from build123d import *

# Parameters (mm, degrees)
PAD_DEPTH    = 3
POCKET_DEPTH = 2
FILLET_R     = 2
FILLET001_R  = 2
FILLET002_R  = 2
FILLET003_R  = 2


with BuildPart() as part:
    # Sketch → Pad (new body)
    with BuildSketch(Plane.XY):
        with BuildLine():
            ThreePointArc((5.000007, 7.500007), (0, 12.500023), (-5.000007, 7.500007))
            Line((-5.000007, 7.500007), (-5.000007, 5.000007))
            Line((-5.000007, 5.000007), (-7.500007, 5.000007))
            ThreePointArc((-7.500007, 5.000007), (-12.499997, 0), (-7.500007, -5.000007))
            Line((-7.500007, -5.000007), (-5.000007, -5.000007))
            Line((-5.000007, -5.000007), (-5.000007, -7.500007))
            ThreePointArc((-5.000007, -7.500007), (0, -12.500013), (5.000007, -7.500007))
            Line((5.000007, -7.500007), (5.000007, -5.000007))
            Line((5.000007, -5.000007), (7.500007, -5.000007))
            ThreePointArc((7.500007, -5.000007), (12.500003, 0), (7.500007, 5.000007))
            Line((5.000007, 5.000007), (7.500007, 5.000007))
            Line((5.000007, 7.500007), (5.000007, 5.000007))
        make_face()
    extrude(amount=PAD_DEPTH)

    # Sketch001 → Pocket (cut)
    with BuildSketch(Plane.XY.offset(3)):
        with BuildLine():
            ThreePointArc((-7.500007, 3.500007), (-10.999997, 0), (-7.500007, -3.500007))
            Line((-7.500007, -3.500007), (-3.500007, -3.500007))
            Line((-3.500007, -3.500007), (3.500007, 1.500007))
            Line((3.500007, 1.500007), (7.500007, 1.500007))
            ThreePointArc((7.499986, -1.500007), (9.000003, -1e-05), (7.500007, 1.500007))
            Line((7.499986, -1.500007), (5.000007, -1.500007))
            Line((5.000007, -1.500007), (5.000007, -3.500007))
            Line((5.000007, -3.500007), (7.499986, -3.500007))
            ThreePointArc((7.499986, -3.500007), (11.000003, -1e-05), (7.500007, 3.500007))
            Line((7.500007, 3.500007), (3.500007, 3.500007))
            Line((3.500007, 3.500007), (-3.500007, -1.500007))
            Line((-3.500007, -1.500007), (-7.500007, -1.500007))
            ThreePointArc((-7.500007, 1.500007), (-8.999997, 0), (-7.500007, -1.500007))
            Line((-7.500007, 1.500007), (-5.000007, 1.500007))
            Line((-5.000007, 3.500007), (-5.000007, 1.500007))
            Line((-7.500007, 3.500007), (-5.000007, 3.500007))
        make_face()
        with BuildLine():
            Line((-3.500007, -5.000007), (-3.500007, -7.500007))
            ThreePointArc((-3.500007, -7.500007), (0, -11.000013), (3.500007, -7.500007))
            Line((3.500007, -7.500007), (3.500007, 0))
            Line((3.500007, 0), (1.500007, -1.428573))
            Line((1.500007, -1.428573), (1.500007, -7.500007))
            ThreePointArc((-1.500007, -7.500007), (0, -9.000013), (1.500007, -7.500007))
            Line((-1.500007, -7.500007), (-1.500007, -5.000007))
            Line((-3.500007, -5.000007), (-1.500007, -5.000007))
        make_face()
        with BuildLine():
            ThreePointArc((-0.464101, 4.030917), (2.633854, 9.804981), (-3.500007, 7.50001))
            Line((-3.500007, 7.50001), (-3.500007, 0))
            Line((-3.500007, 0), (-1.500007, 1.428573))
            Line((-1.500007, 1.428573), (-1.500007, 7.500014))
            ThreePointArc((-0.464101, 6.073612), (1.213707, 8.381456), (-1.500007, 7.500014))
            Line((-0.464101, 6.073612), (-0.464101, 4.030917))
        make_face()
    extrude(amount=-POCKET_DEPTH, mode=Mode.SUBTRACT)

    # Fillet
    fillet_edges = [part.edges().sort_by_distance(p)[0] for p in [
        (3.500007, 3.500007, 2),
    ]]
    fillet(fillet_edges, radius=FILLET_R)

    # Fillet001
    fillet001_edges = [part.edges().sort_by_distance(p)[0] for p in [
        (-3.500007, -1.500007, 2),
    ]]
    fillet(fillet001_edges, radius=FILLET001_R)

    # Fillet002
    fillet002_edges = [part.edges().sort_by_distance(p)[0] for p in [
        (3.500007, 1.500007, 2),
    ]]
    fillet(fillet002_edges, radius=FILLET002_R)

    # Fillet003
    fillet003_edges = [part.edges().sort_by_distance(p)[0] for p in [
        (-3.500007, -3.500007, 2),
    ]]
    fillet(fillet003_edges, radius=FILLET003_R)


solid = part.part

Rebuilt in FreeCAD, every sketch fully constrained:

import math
import FreeCAD as App
import Part
import Sketcher

V = App.Vector
Q = App.Units.Quantity


def edges_at(feature, points):
    """Names of the edges that pass closest to the given points."""
    edges = feature.Shape.Edges
    near = lambda p: min(range(len(edges)), key=lambda i: edges[i].distToShape(Part.Vertex(*p))[0])
    return sorted({f"Edge{near(p) + 1}" for p in points})

doc = App.newDocument("Part")
body = doc.addObject("PartDesign::Body", "Body")

sketch1 = body.newObject("Sketcher::SketchObject", "Sketch")
sketch1.AttachmentSupport = (doc.getObject("XY_Plane"), [""])
sketch1.MapMode = "FlatFace"
sketch1.addGeometry(Part.ArcOfCircle(Part.Circle(V(0, 7.500016, 0), V(0, 0, 1), 5.000007), math.radians(-0.000103), math.radians(180.000103)), False)
sketch1.addGeometry(Part.LineSegment(V(-5.000007, 7.500007, 0), V(-5.000007, 5.000007, 0)), False)
sketch1.addGeometry(Part.LineSegment(V(-5.000007, 5.000007, 0), V(-7.500007, 5.000007, 0)), False)
sketch1.addGeometry(Part.ArcOfCircle(Part.Circle(V(-7.49999, 0, 0), V(0, 0, 1), 5.000007), math.radians(90.000195), math.radians(269.999805)), False)
sketch1.addGeometry(Part.LineSegment(V(-7.500007, -5.000007, 0), V(-5.000007, -5.000007, 0)), False)
sketch1.addGeometry(Part.LineSegment(V(-5.000007, -5.000007, 0), V(-5.000007, -7.500007, 0)), False)
sketch1.addGeometry(Part.ArcOfCircle(Part.Circle(V(0, -7.500006, 0), V(0, 0, 1), 5.000007), math.radians(-179.999989), math.radians(-0.000011)), False)
sketch1.addGeometry(Part.LineSegment(V(5.000007, -7.500007, 0), V(5.000007, -5.000007, 0)), False)
sketch1.addGeometry(Part.LineSegment(V(5.000007, -5.000007, 0), V(7.500007, -5.000007, 0)), False)
sketch1.addGeometry(Part.ArcOfCircle(Part.Circle(V(7.499996, 0, 0), V(0, 0, 1), 5.000007), math.radians(-89.999874), math.radians(89.999874)), False)
sketch1.addGeometry(Part.LineSegment(V(7.500007, 5.000007, 0), V(5.000007, 5.000007, 0)), False)
sketch1.addGeometry(Part.LineSegment(V(5.000007, 5.000007, 0), V(5.000007, 7.500007, 0)), False)
sketch1.addConstraint(Sketcher.Constraint("Tangent", 0, 2, 1, 1))
sketch1.addConstraint(Sketcher.Constraint("Coincident", 1, 2, 2, 1))
sketch1.addConstraint(Sketcher.Constraint("Coincident", 2, 2, 3, 1))
sketch1.addConstraint(Sketcher.Constraint("Coincident", 3, 2, 4, 1))
sketch1.addConstraint(Sketcher.Constraint("Coincident", 4, 2, 5, 1))
sketch1.addConstraint(Sketcher.Constraint("Tangent", 5, 2, 6, 1))
sketch1.addConstraint(Sketcher.Constraint("Tangent", 6, 2, 7, 1))
sketch1.addConstraint(Sketcher.Constraint("Coincident", 7, 2, 8, 1))
sketch1.addConstraint(Sketcher.Constraint("Coincident", 8, 2, 9, 1))
sketch1.addConstraint(Sketcher.Constraint("Coincident", 9, 2, 10, 1))
sketch1.addConstraint(Sketcher.Constraint("Coincident", 10, 2, 11, 1))
sketch1.addConstraint(Sketcher.Constraint("Tangent", 11, 2, 0, 1))
sketch1.addConstraint(Sketcher.Constraint("Vertical", 1))
sketch1.addConstraint(Sketcher.Constraint("Horizontal", 2))
sketch1.addConstraint(Sketcher.Constraint("Horizontal", 4))
sketch1.addConstraint(Sketcher.Constraint("Vertical", 5))
sketch1.addConstraint(Sketcher.Constraint("Vertical", 7))
sketch1.addConstraint(Sketcher.Constraint("Horizontal", 8))
sketch1.addConstraint(Sketcher.Constraint("Horizontal", 10))
sketch1.addConstraint(Sketcher.Constraint("Vertical", 11))
sketch1.addConstraint(Sketcher.Constraint("Equal", 0, 3))
sketch1.addConstraint(Sketcher.Constraint("Equal", 3, 6))
sketch1.addConstraint(Sketcher.Constraint("Equal", 6, 9))
sketch1.addConstraint(Sketcher.Constraint("Symmetric", 0, 3, 6, 3, -1, 1))
sketch1.addConstraint(Sketcher.Constraint("Symmetric", 3, 3, 9, 3, -1, 1))
sketch1.addConstraint(Sketcher.Constraint("Symmetric", 4, 2, 7, 2, -2))
sketch1.addConstraint(Sketcher.Constraint("Vertical", 2, 2, 3, 2))
sketch1.addConstraint(Sketcher.Constraint("Vertical", 8, 2, 9, 2))
sketch1.addConstraint(Sketcher.Constraint("Equal", 4, 8))
sketch1.addConstraint(Sketcher.Constraint("Equal", 10, 1))
sketch1.addConstraint(Sketcher.Constraint("DistanceX", 2, 2, 2, 1, Q("2.5 mm")))
sketch1.addConstraint(Sketcher.Constraint("Radius", 0, Q("5.000007 mm")))
sketch1.addConstraint(Sketcher.Constraint("DistanceX", 3, 3, -1, 1, Q("7.49999 mm")))
pad1 = body.newObject("PartDesign::Pad", "Pad")
pad1.Profile = sketch1
pad1.Length = 3

sketch2 = body.newObject("Sketcher::SketchObject", "Sketch001")
sketch2.AttachmentSupport = (doc.getObject("XY_Plane"), [""])
sketch2.MapMode = "FlatFace"
sketch2.AttachmentOffset = App.Placement(V(0, 0, 3), App.Rotation())
sketch2.addGeometry(Part.ArcOfCircle(Part.Circle(V(-7.49999, 0, 0), V(0, 0, 1), 3.500007), math.radians(90.000278), math.radians(269.999722)), False)
sketch2.addGeometry(Part.LineSegment(V(-7.500007, -3.500007, 0), V(-3.500007, -3.500007, 0)), False)
sketch2.addGeometry(Part.LineSegment(V(-3.500007, -3.500007, 0), V(3.500007, 1.500007, 0)), False)
sketch2.addGeometry(Part.LineSegment(V(3.500007, 1.500007, 0), V(7.500007, 1.500007, 0)), False)
sketch2.addGeometry(Part.ArcOfCircle(Part.Circle(V(7.499996, 0, 0), V(0, 0, 1), 1.500007), math.radians(-90.000382), math.radians(89.99958)), False)
sketch2.addGeometry(Part.LineSegment(V(7.499986, -1.500007, 0), V(5.000007, -1.500007, 0)), False)
sketch2.addGeometry(Part.LineSegment(V(5.000007, -1.500007, 0), V(5.000007, -3.500007, 0)), False)
sketch2.addGeometry(Part.LineSegment(V(5.000007, -3.500007, 0), V(7.499986, -3.500007, 0)), False)
sketch2.addGeometry(Part.ArcOfCircle(Part.Circle(V(7.499996, 0, 0), V(0, 0, 1), 3.500007), math.radians(-90.000164), math.radians(89.99982)), False)
sketch2.addGeometry(Part.LineSegment(V(7.500007, 3.500007, 0), V(3.500007, 3.500007, 0)), False)
sketch2.addGeometry(Part.LineSegment(V(3.500007, 3.500007, 0), V(-3.500007, -1.500007, 0)), False)
sketch2.addGeometry(Part.LineSegment(V(-3.500007, -1.500007, 0), V(-7.500007, -1.500007, 0)), False)
sketch2.addGeometry(Part.ArcOfCircle(Part.Circle(V(-7.49999, 0, 0), V(0, 0, 1), 1.500007), math.radians(90.000649), math.radians(269.999351)), False)
sketch2.addGeometry(Part.LineSegment(V(-7.500007, 1.500007, 0), V(-5.000007, 1.500007, 0)), False)
sketch2.addGeometry(Part.LineSegment(V(-5.000007, 1.500007, 0), V(-5.000007, 3.500007, 0)), False)
sketch2.addGeometry(Part.LineSegment(V(-5.000007, 3.500007, 0), V(-7.500007, 3.500007, 0)), False)
sketch2.addGeometry(Part.LineSegment(V(-3.500007, -5.000007, 0), V(-3.500007, -7.500007, 0)), False)
sketch2.addGeometry(Part.ArcOfCircle(Part.Circle(V(0, -7.500006, 0), V(0, 0, 1), 3.500007), math.radians(-179.999984), math.radians(-0.000016)), False)
sketch2.addGeometry(Part.LineSegment(V(3.500007, -7.500007, 0), V(3.500007, 0, 0)), False)
sketch2.addGeometry(Part.LineSegment(V(3.500007, 0, 0), V(1.500007, -1.428573, 0)), False)
sketch2.addGeometry(Part.LineSegment(V(1.500007, -1.428573, 0), V(1.500007, -7.500007, 0)), False)
sketch2.addGeometry(Part.ArcOfCircle(Part.Circle(V(0, -7.500006, 0), V(0, 0, 1), 1.500007), math.radians(-179.999962), math.radians(-0.000038)), False)
sketch2.addGeometry(Part.LineSegment(V(-1.500007, -7.500007, 0), V(-1.500007, -5.000007, 0)), False)
sketch2.addGeometry(Part.LineSegment(V(-1.500007, -5.000007, 0), V(-3.500007, -5.000007, 0)), False)
sketch2.addGeometry(Part.ArcOfCircle(Part.Circle(V(0, 7.500017, 0), V(0, 0, 1), 3.500007), math.radians(-97.619858), math.radians(180.00012)), False)
sketch2.addGeometry(Part.LineSegment(V(-3.500007, 7.50001, 0), V(-3.500007, 0, 0)), False)
sketch2.addGeometry(Part.LineSegment(V(-3.500007, 0, 0), V(-1.500007, 1.428573, 0)), False)
sketch2.addGeometry(Part.LineSegment(V(-1.500007, 1.428573, 0), V(-1.500007, 7.500014, 0)), False)
sketch2.addGeometry(Part.ArcOfCircle(Part.Circle(V(0, 7.500017, 0), V(0, 0, 1), 1.500007), math.radians(-108.023022), math.radians(180.000108)), False)
sketch2.addGeometry(Part.LineSegment(V(-0.464101, 6.073612, 0), V(-0.464101, 4.030917, 0)), False)
sketch2.addConstraint(Sketcher.Constraint("Coincident", 0, 2, 1, 1))
sketch2.addConstraint(Sketcher.Constraint("Coincident", 1, 2, 2, 1))
sketch2.addConstraint(Sketcher.Constraint("Coincident", 2, 2, 3, 1))
sketch2.addConstraint(Sketcher.Constraint("Coincident", 3, 2, 4, 2))
sketch2.addConstraint(Sketcher.Constraint("Coincident", 4, 1, 5, 1))
sketch2.addConstraint(Sketcher.Constraint("Coincident", 5, 2, 6, 1))
sketch2.addConstraint(Sketcher.Constraint("Coincident", 6, 2, 7, 1))
sketch2.addConstraint(Sketcher.Constraint("Coincident", 7, 2, 8, 1))
sketch2.addConstraint(Sketcher.Constraint("Coincident", 8, 2, 9, 1))
sketch2.addConstraint(Sketcher.Constraint("Coincident", 9, 2, 10, 1))
sketch2.addConstraint(Sketcher.Constraint("Coincident", 10, 2, 11, 1))
sketch2.addConstraint(Sketcher.Constraint("Coincident", 11, 2, 12, 2))
sketch2.addConstraint(Sketcher.Constraint("Coincident", 12, 1, 13, 1))
sketch2.addConstraint(Sketcher.Constraint("Coincident", 13, 2, 14, 1))
sketch2.addConstraint(Sketcher.Constraint("Coincident", 14, 2, 15, 1))
sketch2.addConstraint(Sketcher.Constraint("Coincident", 15, 2, 0, 1))
sketch2.addConstraint(Sketcher.Constraint("Tangent", 16, 2, 17, 1))
sketch2.addConstraint(Sketcher.Constraint("Tangent", 17, 2, 18, 1))
sketch2.addConstraint(Sketcher.Constraint("Coincident", 18, 2, 19, 1))
sketch2.addConstraint(Sketcher.Constraint("Coincident", 19, 2, 20, 1))
sketch2.addConstraint(Sketcher.Constraint("Tangent", 20, 2, 21, 2))
sketch2.addConstraint(Sketcher.Constraint("Tangent", 21, 1, 22, 1))
sketch2.addConstraint(Sketcher.Constraint("Coincident", 22, 2, 23, 1))
sketch2.addConstraint(Sketcher.Constraint("Coincident", 23, 2, 16, 1))
sketch2.addConstraint(Sketcher.Constraint("Coincident", 24, 2, 25, 1))
sketch2.addConstraint(Sketcher.Constraint("Coincident", 25, 2, 26, 1))
sketch2.addConstraint(Sketcher.Constraint("Coincident", 26, 2, 27, 1))
sketch2.addConstraint(Sketcher.Constraint("Tangent", 27, 2, 28, 2))
sketch2.addConstraint(Sketcher.Constraint("Coincident", 28, 1, 29, 1))
sketch2.addConstraint(Sketcher.Constraint("Coincident", 29, 2, 24, 1))
sketch2.addConstraint(Sketcher.Constraint("Horizontal", 1))
sketch2.addConstraint(Sketcher.Constraint("Horizontal", 3))
sketch2.addConstraint(Sketcher.Constraint("Horizontal", 5))
sketch2.addConstraint(Sketcher.Constraint("Vertical", 6))
sketch2.addConstraint(Sketcher.Constraint("Horizontal", 7))
sketch2.addConstraint(Sketcher.Constraint("Horizontal", 9))
sketch2.addConstraint(Sketcher.Constraint("Horizontal", 11))
sketch2.addConstraint(Sketcher.Constraint("Horizontal", 13))
sketch2.addConstraint(Sketcher.Constraint("Vertical", 14))
sketch2.addConstraint(Sketcher.Constraint("Horizontal", 15))
sketch2.addConstraint(Sketcher.Constraint("Vertical", 16))
sketch2.addConstraint(Sketcher.Constraint("Vertical", 18))
sketch2.addConstraint(Sketcher.Constraint("Vertical", 20))
sketch2.addConstraint(Sketcher.Constraint("Vertical", 22))
sketch2.addConstraint(Sketcher.Constraint("Horizontal", 23))
sketch2.addConstraint(Sketcher.Constraint("Vertical", 25))
sketch2.addConstraint(Sketcher.Constraint("Vertical", 27))
sketch2.addConstraint(Sketcher.Constraint("Vertical", 29))
sketch2.addConstraint(Sketcher.Constraint("Coincident", 8, 3, 4, 3))
sketch2.addConstraint(Sketcher.Constraint("Coincident", 12, 3, 0, 3))
sketch2.addConstraint(Sketcher.Constraint("Coincident", 21, 3, 17, 3))
sketch2.addConstraint(Sketcher.Constraint("Coincident", 28, 3, 24, 3))
sketch2.addConstraint(Sketcher.Constraint("Equal", 0, 8))
sketch2.addConstraint(Sketcher.Constraint("Equal", 4, 12))
sketch2.addConstraint(Sketcher.Constraint("Equal", 8, 17))
sketch2.addConstraint(Sketcher.Constraint("Equal", 12, 21))
sketch2.addConstraint(Sketcher.Constraint("Equal", 17, 24))
sketch2.addConstraint(Sketcher.Constraint("Equal", 21, 28))
sketch2.addConstraint(Sketcher.Constraint("Symmetric", 0, 3, 4, 3, -1, 1))
sketch2.addConstraint(Sketcher.Constraint("Symmetric", 17, 2, 24, 2, -1, 1))
sketch2.addConstraint(Sketcher.Constraint("Symmetric", 3, 2, 12, 1, -2))
sketch2.addConstraint(Sketcher.Constraint("Symmetric", 21, 1, 27, 2, -1))
sketch2.addConstraint(Sketcher.Constraint("PointOnObject", 18, 2, -1))
sketch2.addConstraint(Sketcher.Constraint("PointOnObject", 25, 2, -1))
sketch2.addConstraint(Sketcher.Constraint("Parallel", 2, 10))
sketch2.addConstraint(Sketcher.Constraint("Parallel", 10, 19))
sketch2.addConstraint(Sketcher.Constraint("Parallel", 19, 26))
sketch2.addConstraint(Sketcher.Constraint("Vertical", 4, 1, 7, 2))
sketch2.addConstraint(Sketcher.Constraint("Vertical", 3, 2, 8, 2))
sketch2.addConstraint(Sketcher.Constraint("Vertical", 2, 2, 9, 2))
sketch2.addConstraint(Sketcher.Constraint("Vertical", 0, 2, 11, 2))
sketch2.addConstraint(Sketcher.Constraint("Vertical", 11, 2, 12, 1))
sketch2.addConstraint(Sketcher.Constraint("Vertical", 12, 1, 15, 2))
sketch2.addConstraint(Sketcher.Constraint("Vertical", 10, 2, 16, 2))
sketch2.addConstraint(Sketcher.Constraint("Vertical", 9, 2, 17, 2))
sketch2.addConstraint(Sketcher.Constraint("Equal", 15, 16))
sketch2.addConstraint(Sketcher.Constraint("DistanceX", 1, 1, 1, 2, Q("4 mm")))
sketch2.addConstraint(Sketcher.Constraint("DistanceX", 23, 2, 23, 1, Q("2 mm")))
sketch2.addConstraint(Sketcher.Constraint("DistanceX", 13, 1, 13, 2, Q("2.5 mm")))
sketch2.addConstraint(Sketcher.Constraint("DistanceY", 17, 3, 0, 2, Q("3.999999 mm")))
sketch2.addConstraint(Sketcher.Constraint("DistanceX", 2, 2, 5, 2, Q("1.5 mm")))
sketch2.addConstraint(Sketcher.Constraint("Radius", 0, Q("3.500007 mm")))
sketch2.addConstraint(Sketcher.Constraint("DistanceX", 5, 2, 5, 1, Q("2.499979 mm")))
sketch2.addConstraint(Sketcher.Constraint("DistanceX", 28, 1, -1, 1, Q("0.464101 mm")))
sketch2.addConstraint(Sketcher.Constraint("DistanceX", 0, 3, -1, 1, Q("7.49999 mm")))
pocket1 = body.newObject("PartDesign::Pocket", "Pocket")
pocket1.Profile = sketch2
pocket1.Length = 2
doc.recompute()

fillet = body.newObject("PartDesign::Fillet", "Fillet")
fillet.Base = (pocket1, edges_at(pocket1, [(3.5, 3.5, 2)]))
fillet.Radius = 2
doc.recompute()

fillet2 = body.newObject("PartDesign::Fillet", "Fillet001")
fillet2.Base = (fillet, edges_at(fillet, [(-3.5, -1.5, 2)]))
fillet2.Radius = 2
doc.recompute()

fillet3 = body.newObject("PartDesign::Fillet", "Fillet002")
fillet3.Base = (fillet2, edges_at(fillet2, [(3.5, 1.5, 2)]))
fillet3.Radius = 2
doc.recompute()

fillet4 = body.newObject("PartDesign::Fillet", "Fillet003")
fillet4.Base = (fillet3, edges_at(fillet3, [(-3.5, -3.5, 2)]))
fillet4.Radius = 2

doc.recompute()
